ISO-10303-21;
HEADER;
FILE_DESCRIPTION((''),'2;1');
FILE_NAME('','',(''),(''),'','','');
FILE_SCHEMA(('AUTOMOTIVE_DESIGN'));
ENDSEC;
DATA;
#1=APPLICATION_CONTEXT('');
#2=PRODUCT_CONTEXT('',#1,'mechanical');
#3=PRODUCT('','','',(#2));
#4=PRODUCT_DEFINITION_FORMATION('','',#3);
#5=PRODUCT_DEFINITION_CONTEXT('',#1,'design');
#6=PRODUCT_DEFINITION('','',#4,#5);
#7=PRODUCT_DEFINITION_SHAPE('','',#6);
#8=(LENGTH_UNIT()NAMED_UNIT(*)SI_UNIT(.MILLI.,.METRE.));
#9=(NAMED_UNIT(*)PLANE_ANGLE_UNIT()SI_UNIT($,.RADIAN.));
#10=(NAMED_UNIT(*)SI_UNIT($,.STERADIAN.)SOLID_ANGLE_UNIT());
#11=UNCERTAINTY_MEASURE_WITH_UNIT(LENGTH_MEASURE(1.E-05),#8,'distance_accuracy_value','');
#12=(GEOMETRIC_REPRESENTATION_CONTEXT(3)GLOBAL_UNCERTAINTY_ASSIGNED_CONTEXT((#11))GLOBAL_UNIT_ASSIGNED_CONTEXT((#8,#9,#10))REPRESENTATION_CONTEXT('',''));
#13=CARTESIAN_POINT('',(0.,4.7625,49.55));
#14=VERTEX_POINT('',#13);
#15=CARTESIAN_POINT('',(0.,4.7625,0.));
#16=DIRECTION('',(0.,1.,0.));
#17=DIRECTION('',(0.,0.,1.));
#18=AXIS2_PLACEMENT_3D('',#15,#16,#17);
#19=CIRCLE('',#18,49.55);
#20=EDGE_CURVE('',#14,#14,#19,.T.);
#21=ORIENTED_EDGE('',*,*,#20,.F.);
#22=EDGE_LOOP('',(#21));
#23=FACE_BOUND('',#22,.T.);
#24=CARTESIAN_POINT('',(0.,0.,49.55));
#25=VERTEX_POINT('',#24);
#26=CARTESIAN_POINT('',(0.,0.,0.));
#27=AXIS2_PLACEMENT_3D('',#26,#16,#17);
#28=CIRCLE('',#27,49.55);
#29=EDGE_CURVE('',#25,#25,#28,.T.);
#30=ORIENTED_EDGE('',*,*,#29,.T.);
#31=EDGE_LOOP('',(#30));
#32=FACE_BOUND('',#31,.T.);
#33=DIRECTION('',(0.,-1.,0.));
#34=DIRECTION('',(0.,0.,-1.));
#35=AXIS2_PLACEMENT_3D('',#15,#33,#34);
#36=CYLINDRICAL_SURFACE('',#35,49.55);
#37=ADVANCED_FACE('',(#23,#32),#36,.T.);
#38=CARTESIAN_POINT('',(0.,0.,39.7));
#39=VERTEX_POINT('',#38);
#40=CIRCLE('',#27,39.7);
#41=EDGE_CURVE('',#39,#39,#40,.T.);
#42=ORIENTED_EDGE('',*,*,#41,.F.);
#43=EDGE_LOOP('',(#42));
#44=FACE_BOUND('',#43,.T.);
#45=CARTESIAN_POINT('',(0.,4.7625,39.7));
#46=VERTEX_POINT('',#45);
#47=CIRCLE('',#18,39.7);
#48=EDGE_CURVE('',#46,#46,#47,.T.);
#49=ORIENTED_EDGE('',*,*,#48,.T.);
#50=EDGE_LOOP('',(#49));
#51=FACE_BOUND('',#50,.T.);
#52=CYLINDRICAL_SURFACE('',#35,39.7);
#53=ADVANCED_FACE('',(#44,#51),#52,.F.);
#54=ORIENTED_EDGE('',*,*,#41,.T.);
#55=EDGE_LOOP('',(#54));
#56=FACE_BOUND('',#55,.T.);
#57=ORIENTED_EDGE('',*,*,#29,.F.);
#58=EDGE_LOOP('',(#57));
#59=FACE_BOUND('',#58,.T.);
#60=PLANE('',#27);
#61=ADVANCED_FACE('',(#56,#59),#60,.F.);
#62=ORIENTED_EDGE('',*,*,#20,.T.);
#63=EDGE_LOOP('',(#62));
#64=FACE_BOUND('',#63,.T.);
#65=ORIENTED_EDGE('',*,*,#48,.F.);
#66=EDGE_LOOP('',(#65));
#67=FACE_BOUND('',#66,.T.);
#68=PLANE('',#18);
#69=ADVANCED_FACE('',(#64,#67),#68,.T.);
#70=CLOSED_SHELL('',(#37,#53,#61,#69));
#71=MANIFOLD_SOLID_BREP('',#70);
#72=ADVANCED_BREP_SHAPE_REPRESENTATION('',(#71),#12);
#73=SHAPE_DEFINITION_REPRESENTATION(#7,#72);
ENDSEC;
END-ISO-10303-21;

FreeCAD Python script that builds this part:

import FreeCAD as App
import Part
import Sketcher
from FreeCAD import Vector
Q = App.Units.Quantity

doc = App.newDocument("Part")
body = doc.addObject("PartDesign::Body", "Body")

# Sketch on XZ plane
sketch1 = doc.addObject("Sketcher::SketchObject", "Sketch")
body.addObject(sketch1)
sketch1.AttachmentSupport = (doc.XZ_Plane, [""])
sketch1.MapMode = "FlatFace"
sketch1.addGeometry([
    Part.Circle(Vector(0, 0, 0), Vector(0, 0, 1), 49.55),
    Part.Circle(Vector(0, 0, 0), Vector(0, 0, 1), 39.7),
], False)
sketch1.addConstraint([
    Sketcher.Constraint("Coincident", 0, 3, -1, 1),
    Sketcher.Constraint("Coincident", 1, 3, -1, 1),
    Sketcher.Constraint("Diameter", 0, Q("99.1 mm")),
    Sketcher.Constraint("Diameter", 1, Q("79.4 mm")),
])
pad1 = doc.addObject("PartDesign::Pad", "Pad")
body.addObject(pad1)
pad1.Profile = sketch1
pad1.Length = 4.7625
pad1.Reversed = True

doc.recompute()
